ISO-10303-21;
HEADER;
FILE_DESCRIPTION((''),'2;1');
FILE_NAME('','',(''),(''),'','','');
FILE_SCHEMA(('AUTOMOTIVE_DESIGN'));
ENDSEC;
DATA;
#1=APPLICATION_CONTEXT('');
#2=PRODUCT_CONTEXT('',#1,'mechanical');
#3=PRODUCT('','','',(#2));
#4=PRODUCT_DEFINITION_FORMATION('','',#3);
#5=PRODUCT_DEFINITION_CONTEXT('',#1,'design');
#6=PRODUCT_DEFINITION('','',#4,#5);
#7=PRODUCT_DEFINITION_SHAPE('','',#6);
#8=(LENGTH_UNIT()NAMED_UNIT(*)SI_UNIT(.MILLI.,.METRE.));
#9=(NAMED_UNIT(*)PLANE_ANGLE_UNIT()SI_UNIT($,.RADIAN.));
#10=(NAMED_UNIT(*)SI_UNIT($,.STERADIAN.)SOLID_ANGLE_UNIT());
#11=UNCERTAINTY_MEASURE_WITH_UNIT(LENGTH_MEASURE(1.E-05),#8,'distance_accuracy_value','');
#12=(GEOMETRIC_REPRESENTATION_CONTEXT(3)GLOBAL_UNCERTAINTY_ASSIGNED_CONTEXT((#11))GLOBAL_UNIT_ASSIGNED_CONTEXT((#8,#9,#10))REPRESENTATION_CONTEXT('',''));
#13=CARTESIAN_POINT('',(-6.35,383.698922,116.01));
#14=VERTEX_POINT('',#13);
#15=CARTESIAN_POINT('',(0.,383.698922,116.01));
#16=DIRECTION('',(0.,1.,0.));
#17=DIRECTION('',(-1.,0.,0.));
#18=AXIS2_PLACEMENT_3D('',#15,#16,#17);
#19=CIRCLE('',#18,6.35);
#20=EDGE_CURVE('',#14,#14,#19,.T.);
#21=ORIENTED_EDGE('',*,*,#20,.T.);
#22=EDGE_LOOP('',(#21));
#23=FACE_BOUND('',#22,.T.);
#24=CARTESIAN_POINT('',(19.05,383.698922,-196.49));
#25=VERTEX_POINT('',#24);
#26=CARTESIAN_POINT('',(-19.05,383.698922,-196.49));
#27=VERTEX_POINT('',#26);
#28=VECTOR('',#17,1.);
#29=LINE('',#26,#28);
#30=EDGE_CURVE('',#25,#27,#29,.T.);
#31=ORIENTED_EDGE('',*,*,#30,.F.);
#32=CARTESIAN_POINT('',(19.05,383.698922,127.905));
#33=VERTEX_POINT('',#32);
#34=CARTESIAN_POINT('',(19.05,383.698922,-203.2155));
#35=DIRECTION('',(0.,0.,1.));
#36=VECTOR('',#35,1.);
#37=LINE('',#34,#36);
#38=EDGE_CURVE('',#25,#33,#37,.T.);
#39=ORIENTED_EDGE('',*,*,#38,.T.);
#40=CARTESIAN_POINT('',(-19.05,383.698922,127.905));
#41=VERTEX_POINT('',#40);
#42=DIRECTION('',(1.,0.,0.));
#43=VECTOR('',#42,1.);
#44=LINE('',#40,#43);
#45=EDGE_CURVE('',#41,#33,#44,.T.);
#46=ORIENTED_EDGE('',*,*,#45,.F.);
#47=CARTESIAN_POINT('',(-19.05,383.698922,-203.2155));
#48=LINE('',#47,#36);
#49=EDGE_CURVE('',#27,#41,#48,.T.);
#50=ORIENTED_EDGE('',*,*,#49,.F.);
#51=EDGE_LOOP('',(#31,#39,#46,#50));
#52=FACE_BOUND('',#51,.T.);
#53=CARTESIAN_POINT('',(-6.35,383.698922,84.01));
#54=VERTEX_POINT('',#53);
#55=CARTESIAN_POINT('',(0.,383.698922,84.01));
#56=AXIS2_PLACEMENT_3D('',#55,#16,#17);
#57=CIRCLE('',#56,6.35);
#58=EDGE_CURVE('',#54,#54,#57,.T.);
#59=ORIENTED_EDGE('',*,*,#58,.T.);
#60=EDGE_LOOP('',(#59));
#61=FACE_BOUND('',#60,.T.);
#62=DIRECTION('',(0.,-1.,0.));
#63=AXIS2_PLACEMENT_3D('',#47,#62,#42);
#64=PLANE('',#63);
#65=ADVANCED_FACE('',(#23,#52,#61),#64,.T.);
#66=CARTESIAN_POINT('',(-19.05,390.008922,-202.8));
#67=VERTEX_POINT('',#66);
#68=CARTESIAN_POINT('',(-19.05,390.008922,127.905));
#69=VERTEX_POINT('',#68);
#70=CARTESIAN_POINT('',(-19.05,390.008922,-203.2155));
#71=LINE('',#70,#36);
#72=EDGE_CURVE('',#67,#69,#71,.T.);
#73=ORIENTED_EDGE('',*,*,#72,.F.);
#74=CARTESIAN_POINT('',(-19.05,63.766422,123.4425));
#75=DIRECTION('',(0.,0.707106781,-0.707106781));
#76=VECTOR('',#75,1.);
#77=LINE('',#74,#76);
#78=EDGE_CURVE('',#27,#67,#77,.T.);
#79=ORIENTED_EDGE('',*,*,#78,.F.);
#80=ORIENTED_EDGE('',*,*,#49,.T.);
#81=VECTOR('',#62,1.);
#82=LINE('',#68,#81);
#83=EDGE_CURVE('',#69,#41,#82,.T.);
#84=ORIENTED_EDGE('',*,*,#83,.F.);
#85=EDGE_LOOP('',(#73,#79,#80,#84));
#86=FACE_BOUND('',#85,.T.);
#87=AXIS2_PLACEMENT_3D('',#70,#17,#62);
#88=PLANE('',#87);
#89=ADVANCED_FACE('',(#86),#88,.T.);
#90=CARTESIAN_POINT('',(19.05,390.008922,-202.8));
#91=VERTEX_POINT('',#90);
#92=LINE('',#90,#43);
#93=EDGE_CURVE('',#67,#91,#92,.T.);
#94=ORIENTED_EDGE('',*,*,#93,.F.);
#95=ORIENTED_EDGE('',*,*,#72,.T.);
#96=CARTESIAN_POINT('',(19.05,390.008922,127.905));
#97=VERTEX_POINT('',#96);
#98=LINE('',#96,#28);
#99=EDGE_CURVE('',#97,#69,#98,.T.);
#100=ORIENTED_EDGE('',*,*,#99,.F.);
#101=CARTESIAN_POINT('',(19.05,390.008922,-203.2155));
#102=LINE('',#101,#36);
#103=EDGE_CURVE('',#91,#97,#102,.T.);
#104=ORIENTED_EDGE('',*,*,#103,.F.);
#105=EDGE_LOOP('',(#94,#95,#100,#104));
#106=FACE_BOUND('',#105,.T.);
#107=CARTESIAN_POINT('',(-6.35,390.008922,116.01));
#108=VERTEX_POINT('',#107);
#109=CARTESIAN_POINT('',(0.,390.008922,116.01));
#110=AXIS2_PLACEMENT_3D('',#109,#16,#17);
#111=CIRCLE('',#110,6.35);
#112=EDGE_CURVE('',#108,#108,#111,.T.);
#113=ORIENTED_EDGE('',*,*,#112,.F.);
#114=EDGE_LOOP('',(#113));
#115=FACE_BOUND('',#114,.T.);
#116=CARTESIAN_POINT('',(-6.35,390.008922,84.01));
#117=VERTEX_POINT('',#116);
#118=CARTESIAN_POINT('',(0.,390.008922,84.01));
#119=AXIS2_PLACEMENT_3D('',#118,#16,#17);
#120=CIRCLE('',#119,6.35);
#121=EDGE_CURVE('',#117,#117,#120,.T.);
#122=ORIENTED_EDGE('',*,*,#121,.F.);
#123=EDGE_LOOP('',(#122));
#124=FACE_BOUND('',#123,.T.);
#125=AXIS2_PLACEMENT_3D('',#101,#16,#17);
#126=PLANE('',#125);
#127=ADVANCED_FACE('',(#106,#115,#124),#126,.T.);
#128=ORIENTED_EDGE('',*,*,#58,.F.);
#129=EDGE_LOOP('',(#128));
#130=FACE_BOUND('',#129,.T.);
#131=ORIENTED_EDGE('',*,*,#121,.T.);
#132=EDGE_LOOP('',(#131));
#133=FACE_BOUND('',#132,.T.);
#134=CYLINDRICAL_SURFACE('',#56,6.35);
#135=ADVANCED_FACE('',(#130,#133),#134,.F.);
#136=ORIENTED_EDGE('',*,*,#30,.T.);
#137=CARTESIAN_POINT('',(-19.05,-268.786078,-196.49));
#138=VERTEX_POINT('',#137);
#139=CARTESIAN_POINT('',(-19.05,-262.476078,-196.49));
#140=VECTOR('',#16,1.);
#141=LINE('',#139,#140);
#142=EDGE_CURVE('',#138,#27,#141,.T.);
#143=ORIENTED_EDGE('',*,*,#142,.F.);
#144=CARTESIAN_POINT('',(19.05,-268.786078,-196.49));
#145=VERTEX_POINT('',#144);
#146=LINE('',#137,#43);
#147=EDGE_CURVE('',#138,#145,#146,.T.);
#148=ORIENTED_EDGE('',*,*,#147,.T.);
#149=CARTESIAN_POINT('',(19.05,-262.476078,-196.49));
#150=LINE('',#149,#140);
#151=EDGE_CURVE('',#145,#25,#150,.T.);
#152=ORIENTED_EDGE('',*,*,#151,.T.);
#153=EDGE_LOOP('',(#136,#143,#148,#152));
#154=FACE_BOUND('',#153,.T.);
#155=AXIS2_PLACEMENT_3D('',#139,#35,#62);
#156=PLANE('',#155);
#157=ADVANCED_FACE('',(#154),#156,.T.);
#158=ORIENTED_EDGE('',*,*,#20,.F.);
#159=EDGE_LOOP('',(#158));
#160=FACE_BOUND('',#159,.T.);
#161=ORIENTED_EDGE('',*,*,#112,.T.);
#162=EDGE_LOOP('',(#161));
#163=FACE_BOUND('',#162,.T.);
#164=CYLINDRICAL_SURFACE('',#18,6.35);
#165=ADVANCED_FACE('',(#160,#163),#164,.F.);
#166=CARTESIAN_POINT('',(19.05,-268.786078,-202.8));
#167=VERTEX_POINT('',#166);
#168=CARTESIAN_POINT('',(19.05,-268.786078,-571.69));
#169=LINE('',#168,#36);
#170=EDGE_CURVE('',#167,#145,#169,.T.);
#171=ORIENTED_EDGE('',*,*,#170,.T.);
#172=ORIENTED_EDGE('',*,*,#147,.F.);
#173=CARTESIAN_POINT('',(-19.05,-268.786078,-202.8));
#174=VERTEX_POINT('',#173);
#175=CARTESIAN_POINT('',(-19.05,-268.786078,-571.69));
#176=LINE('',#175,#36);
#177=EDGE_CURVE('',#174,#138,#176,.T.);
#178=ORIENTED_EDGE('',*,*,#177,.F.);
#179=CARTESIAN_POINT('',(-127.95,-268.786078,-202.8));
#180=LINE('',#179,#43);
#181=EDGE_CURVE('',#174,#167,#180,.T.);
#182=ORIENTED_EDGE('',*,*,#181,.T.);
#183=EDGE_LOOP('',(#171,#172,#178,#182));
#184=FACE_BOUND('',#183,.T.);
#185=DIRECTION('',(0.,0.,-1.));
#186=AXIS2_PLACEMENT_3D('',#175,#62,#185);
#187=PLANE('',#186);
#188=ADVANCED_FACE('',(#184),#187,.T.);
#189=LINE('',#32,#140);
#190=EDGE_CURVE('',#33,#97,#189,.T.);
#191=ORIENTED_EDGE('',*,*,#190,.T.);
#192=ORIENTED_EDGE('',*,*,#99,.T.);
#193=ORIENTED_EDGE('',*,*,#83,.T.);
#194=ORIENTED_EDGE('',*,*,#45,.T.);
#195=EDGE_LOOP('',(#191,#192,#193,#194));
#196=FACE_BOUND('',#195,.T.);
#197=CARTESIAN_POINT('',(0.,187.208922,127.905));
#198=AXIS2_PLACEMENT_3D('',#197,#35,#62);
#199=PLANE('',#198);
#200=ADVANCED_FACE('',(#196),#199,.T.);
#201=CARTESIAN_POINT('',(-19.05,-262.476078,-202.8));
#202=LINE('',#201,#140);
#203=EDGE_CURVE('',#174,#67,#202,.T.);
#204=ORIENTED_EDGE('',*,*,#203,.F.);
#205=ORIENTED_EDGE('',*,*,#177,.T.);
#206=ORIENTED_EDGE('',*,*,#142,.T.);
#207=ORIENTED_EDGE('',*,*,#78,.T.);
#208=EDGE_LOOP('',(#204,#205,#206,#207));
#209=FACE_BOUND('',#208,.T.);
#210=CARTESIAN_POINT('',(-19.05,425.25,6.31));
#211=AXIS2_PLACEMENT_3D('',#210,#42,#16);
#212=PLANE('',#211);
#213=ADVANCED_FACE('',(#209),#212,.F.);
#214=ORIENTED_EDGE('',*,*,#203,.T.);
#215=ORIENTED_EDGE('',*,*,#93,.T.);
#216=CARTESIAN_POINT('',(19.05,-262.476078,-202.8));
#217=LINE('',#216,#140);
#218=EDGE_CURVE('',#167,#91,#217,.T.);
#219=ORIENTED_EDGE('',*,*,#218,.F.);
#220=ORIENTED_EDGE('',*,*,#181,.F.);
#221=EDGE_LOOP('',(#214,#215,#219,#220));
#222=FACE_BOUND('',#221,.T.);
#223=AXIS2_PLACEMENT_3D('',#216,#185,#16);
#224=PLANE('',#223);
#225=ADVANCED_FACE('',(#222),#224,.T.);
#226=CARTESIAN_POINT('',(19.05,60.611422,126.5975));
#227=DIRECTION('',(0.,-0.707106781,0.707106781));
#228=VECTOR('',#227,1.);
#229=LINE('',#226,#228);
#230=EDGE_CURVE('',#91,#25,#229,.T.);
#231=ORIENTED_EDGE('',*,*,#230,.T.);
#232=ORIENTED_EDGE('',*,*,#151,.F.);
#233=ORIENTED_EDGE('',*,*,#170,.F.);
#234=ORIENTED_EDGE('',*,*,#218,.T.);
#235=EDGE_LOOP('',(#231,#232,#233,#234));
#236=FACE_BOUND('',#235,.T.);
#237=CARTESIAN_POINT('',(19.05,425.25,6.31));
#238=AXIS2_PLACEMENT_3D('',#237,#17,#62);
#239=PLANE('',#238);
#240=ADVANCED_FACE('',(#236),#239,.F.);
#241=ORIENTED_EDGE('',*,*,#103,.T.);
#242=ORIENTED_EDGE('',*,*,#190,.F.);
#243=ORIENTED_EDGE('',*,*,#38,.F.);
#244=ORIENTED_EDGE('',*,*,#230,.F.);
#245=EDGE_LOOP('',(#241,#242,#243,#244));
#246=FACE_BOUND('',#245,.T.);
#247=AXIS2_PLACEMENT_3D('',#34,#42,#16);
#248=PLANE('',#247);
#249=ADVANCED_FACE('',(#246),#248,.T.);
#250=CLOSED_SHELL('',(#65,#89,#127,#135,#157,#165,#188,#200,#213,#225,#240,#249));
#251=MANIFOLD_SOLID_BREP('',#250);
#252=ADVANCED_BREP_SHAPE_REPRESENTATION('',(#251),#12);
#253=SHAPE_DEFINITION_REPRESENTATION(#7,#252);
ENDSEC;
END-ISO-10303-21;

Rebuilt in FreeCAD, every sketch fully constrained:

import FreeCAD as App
import Part
import Sketcher
Q = App.Units.Quantity


def add_polygon(sketch, points):
    """Adds a closed chain of lines whose ends are joined by coincident constraints."""
    first, n = sketch.GeometryCount, len(points)
    for a, b in zip(points, points[1:] + points[:1]):
        sketch.addGeometry(Part.LineSegment(App.Vector(*a, 0), App.Vector(*b, 0)), False)
    for i in range(n):
        sketch.addConstraint(Sketcher.Constraint("Coincident", first + i, 2, first + (i + 1) % n, 1))

doc = App.newDocument("Part")
body = doc.addObject("PartDesign::Body", "Body")

# Sketch on XY plane
sketch1 = doc.addObject("Sketcher::SketchObject", "Sketch")
body.addObject(sketch1)
sketch1.AttachmentSupport = (doc.XY_Plane, [""])
sketch1.MapMode = "FlatFace"
add_polygon(sketch1, [(-19, 425), (-19, -425), (19, -425), (19, 425)])  # lines 0-3
sketch1.addConstraint(Sketcher.Constraint("Vertical", 0))
sketch1.addConstraint(Sketcher.Constraint("Horizontal", 1))
sketch1.addConstraint(Sketcher.Constraint("Vertical", 2))
sketch1.addConstraint(Sketcher.Constraint("Horizontal", 3))
sketch1.addConstraint(Sketcher.Constraint("Symmetric", 0, 2, 2, 2, -1, 1))
sketch1.addConstraint(Sketcher.Constraint("DistanceX", 1, 1, 1, 2, Q("38.1 mm")))
sketch1.addConstraint(Sketcher.Constraint("DistanceY", 0, 2, 0, 1, Q("850.5 mm")))
pad1 = doc.addObject("PartDesign::Pad", "Pad")
body.addObject(pad1)
pad1.Profile = sketch1
pad1.Length = 6.31

# Sketch on XY plane
sketch2 = doc.addObject("Sketcher::SketchObject", "Sketch001")
body.addObject(sketch2)
sketch2.AttachmentSupport = (doc.XY_Plane, [""])
sketch2.MapMode = "FlatFace"
sketch2.AttachmentOffset = App.Placement(App.Vector(0, 0, 6.31), App.Rotation())
add_polygon(sketch2, [(-19, -419), (-19, -425), (19, -425), (19, -419)])  # lines 0-3
sketch2.addConstraint(Sketcher.Constraint("Vertical", 0))
sketch2.addConstraint(Sketcher.Constraint("Horizontal", 1))
sketch2.addConstraint(Sketcher.Constraint("Vertical", 2))
sketch2.addConstraint(Sketcher.Constraint("Horizontal", 3))
sketch2.addConstraint(Sketcher.Constraint("DistanceX", 1, 1, 1, 2, Q("38.1 mm")))
sketch2.addConstraint(Sketcher.Constraint("DistanceY", 0, 2, 0, 1, Q("6.31 mm")))
sketch2.addConstraint(Sketcher.Constraint("DistanceX", 0, 2, -1, 1, Q("19.05 mm")))
sketch2.addConstraint(Sketcher.Constraint("DistanceY", 0, 2, -1, 1, Q("425.25 mm")))
pad2 = doc.addObject("PartDesign::Pad", "Pad001")
body.addObject(pad2)
pad2.Profile = sketch2
pad2.Length = 70

# Sketch on XY plane
sketch3 = doc.addObject("Sketcher::SketchObject", "Sketch002")
body.addObject(sketch3)
sketch3.AttachmentSupport = (doc.XY_Plane, [""])
sketch3.MapMode = "FlatFace"
sketch3.AttachmentOffset = App.Placement(App.Vector(0, 0, 6.31), App.Rotation())
add_polygon(sketch3, [(-19, -262), (-19, -269), (19, -269), (19, -262)])  # lines 0-3
sketch3.addConstraint(Sketcher.Constraint("Vertical", 0))
sketch3.addConstraint(Sketcher.Constraint("Horizontal", 1))
sketch3.addConstraint(Sketcher.Constraint("Vertical", 2))
sketch3.addConstraint(Sketcher.Constraint("Horizontal", 3))
sketch3.addConstraint(Sketcher.Constraint("DistanceX", 1, 1, 1, 2, Q("38.1 mm")))
sketch3.addConstraint(Sketcher.Constraint("DistanceY", 0, 2, 0, 1, Q("6.31 mm")))
sketch3.addConstraint(Sketcher.Constraint("DistanceX", 0, 2, -1, 1, Q("19.05 mm")))
sketch3.addConstraint(Sketcher.Constraint("DistanceY", 0, 2, -1, 1, Q("268.786078 mm")))
pad3 = doc.addObject("PartDesign::Pad", "Pad002")
body.addObject(pad3)
pad3.Profile = sketch3
pad3.Length = 578
pad3.Reversed = True

# Sketch on XZ plane
sketch4 = doc.addObject("Sketcher::SketchObject", "Sketch003")
body.addObject(sketch4)
sketch4.AttachmentSupport = (doc.XZ_Plane, [""])
sketch4.MapMode = "FlatFace"
sketch4.AttachmentOffset = App.Placement(App.Vector(0, 0, 262.476078), App.Rotation())
sketch4.addGeometry(Part.Circle(App.Vector(0, -537, 0), App.Vector(0, 0, 1), 7), False)
sketch4.addConstraint(Sketcher.Constraint("PointOnObject", 0, 3, -2))
sketch4.addConstraint(Sketcher.Constraint("Diameter", 0, Q("13.871713 mm")))
sketch4.addConstraint(Sketcher.Constraint("DistanceY", 0, 3, -1, 1, Q("536.981534 mm")))
pocket1 = doc.addObject("PartDesign::Pocket", "Pocket")
body.addObject(pocket1)
pocket1.Profile = sketch4
pocket1.Length = 7
pocket1.Reversed = True

# Sketch on XY plane
sketch5 = doc.addObject("Sketcher::SketchObject", "Sketch004")
body.addObject(sketch5)
sketch5.AttachmentSupport = (doc.XY_Plane, [""])
sketch5.MapMode = "FlatFace"
add_polygon(sketch5, [(19, 425), (19, -262), (-19, -262), (-19, 425)])  # lines 0-3
sketch5.addConstraint(Sketcher.Constraint("Vertical", 0))
sketch5.addConstraint(Sketcher.Constraint("Horizontal", 1))
sketch5.addConstraint(Sketcher.Constraint("Vertical", 2))
sketch5.addConstraint(Sketcher.Constraint("Horizontal", 3))
sketch5.addConstraint(Sketcher.Constraint("DistanceX", 1, 2, 1, 1, Q("38.1 mm")))
sketch5.addConstraint(Sketcher.Constraint("DistanceX", -1, 1, 0, 2, Q("19.05 mm")))
sketch5.addConstraint(Sketcher.Constraint("DistanceY", -1, 1, 2, 2, Q("425.25 mm")))
sketch5.addConstraint(Sketcher.Constraint("DistanceY", 0, 2, 0, 1, Q("687.726078 mm")))
pocket2 = doc.addObject("PartDesign::Pocket", "Pocket001")
body.addObject(pocket2)
pocket2.Profile = sketch5
pocket2.Length = 10
pocket2.Reversed = True

# Sketch on XZ plane
sketch6 = doc.addObject("Sketcher::SketchObject", "Sketch005")
body.addObject(sketch6)
sketch6.AttachmentSupport = (doc.XZ_Plane, [""])
sketch6.MapMode = "FlatFace"
sketch6.AttachmentOffset = App.Placement(App.Vector(0, 0, 262.476078), App.Rotation())
add_polygon(sketch6, [(-19, -203), (-19, -196), (19, -196), (19, -203)])  # lines 0-3
sketch6.addConstraint(Sketcher.Constraint("Vertical", 0))
sketch6.addConstraint(Sketcher.Constraint("Horizontal", 1))
sketch6.addConstraint(Sketcher.Constraint("Vertical", 2))
sketch6.addConstraint(Sketcher.Constraint("Horizontal", 3))
sketch6.addConstraint(Sketcher.Constraint("DistanceX", 1, 1, 1, 2, Q("38.1 mm")))
sketch6.addConstraint(Sketcher.Constraint("DistanceY", 0, 1, 0, 2, Q("6.31 mm")))
sketch6.addConstraint(Sketcher.Constraint("DistanceY", 2, 2, -1, 1, Q("202.8 mm")))
sketch6.addConstraint(Sketcher.Constraint("DistanceX", 0, 2, -1, 1, Q("19.05 mm")))

# Sketch on YZ plane
sketch7 = doc.addObject("Sketcher::SketchObject", "Sketch006")
body.addObject(sketch7)
sketch7.AttachmentSupport = (doc.YZ_Plane, [""])
sketch7.MapMode = "FlatFace"
sketch7.addGeometry(Part.LineSegment(App.Vector(-262, -200, 0), App.Vector(387, -200, 0)), False)
sketch7.addGeometry(Part.LineSegment(App.Vector(387, -200, 0), App.Vector(387, 128, 0)), False)
sketch7.addConstraint(Sketcher.Constraint("Coincident", 0, 2, 1, 1))
sketch7.addConstraint(Sketcher.Constraint("Horizontal", 0))
sketch7.addConstraint(Sketcher.Constraint("Vertical", 1))
sketch7.addConstraint(Sketcher.Constraint("DistanceX", 0, 1, 0, 2, Q("649.33 mm")))
sketch7.addConstraint(Sketcher.Constraint("DistanceY", 1, 1, 1, 2, Q("327.55 mm")))
sketch7.addConstraint(Sketcher.Constraint("DistanceY", 0, 1, -1, 1, Q("199.645 mm")))
sketch7.addConstraint(Sketcher.Constraint("DistanceX", 0, 1, -1, 1, Q("262.476078 mm")))
doc.recompute()

additivepipe = doc.addObject("PartDesign::AdditivePipe", "AdditivePipe")
body.addObject(additivepipe)
additivepipe.Profile = sketch6
additivepipe.Spine = (sketch7, ["Edge1", "Edge2"])
additivepipe.Transition = "Right corner"

# Sketch on YZ plane
sketch8 = doc.addObject("Sketcher::SketchObject", "Sketch007")
body.addObject(sketch8)
sketch8.AttachmentSupport = (doc.YZ_Plane, [""])
sketch8.MapMode = "FlatFace"
sketch8.AttachmentOffset = App.Placement(App.Vector(0, 0, 19.05), App.Rotation())
add_polygon(sketch8, [(-444, -196), (-262, -196), (-262, 91), (-444, 91)])  # lines 0-3
add_polygon(sketch8, [(-262, -203), (-269, -203), (-269, -572), (-262, -572)])  # lines 4-7
sketch8.addConstraint(Sketcher.Constraint("Horizontal", 0))
sketch8.addConstraint(Sketcher.Constraint("Vertical", 1))
sketch8.addConstraint(Sketcher.Constraint("Horizontal", 2))
sketch8.addConstraint(Sketcher.Constraint("Vertical", 3))
sketch8.addConstraint(Sketcher.Constraint("Horizontal", 4))
sketch8.addConstraint(Sketcher.Constraint("Vertical", 5))
sketch8.addConstraint(Sketcher.Constraint("Horizontal", 6))
sketch8.addConstraint(Sketcher.Constraint("Vertical", 7))
sketch8.addConstraint(Sketcher.Constraint("Vertical", 1, 2, 6, 2))
sketch8.addConstraint(Sketcher.Constraint("DistanceX", 4, 2, 4, 1, Q("6.31 mm")))
sketch8.addConstraint(Sketcher.Constraint("DistanceY", 5, 2, 5, 1, Q("368.89 mm")))
sketch8.addConstraint(Sketcher.Constraint("DistanceY", 4, 2, -1, 1, Q("202.8 mm")))
sketch8.addConstraint(Sketcher.Constraint("DistanceY", 5, 2, 0, 2, Q("375.2 mm")))
sketch8.addConstraint(Sketcher.Constraint("DistanceY", 1, 1, 1, 2, Q("287.324601 mm")))
sketch8.addConstraint(Sketcher.Constraint("DistanceX", 0, 1, 0, 2, Q("181.831596 mm")))
sketch8.addConstraint(Sketcher.Constraint("DistanceX", 0, 2, -1, 1, Q("262.476078 mm")))
pocket3 = doc.addObject("PartDesign::Pocket", "Pocket002")
body.addObject(pocket3)
pocket3.Profile = sketch8
pocket3.Length = 147

# Sketch on XZ plane
sketch9 = doc.addObject("Sketcher::SketchObject", "Sketch008")
body.addObject(sketch9)
sketch9.AttachmentSupport = (doc.XZ_Plane, [""])
sketch9.MapMode = "FlatFace"
sketch9.AttachmentOffset = App.Placement(App.Vector(0, 0, -390.008922), App.Rotation())
sketch9.addGeometry(Part.Circle(App.Vector(0, 84, 0), App.Vector(0, 0, 1), 6), False)
sketch9.addGeometry(Part.Circle(App.Vector(0, 116, 0), App.Vector(0, 0, 1), 6), False)
sketch9.addConstraint(Sketcher.Constraint("Equal", 0, 1))
sketch9.addConstraint(Sketcher.Constraint("PointOnObject", 0, 3, -2))
sketch9.addConstraint(Sketcher.Constraint("PointOnObject", 1, 3, -2))
sketch9.addConstraint(Sketcher.Constraint("Diameter", 0, Q("12.7 mm")))
sketch9.addConstraint(Sketcher.Constraint("DistanceY", 0, 3, 1, 3, Q("32 mm")))
sketch9.addConstraint(Sketcher.Constraint("DistanceY", -1, 1, 0, 3, Q("84.01 mm")))
pocket4 = doc.addObject("PartDesign::Pocket", "Pocket003")
body.addObject(pocket4)
pocket4.Profile = sketch9
pocket4.Length = 6.31
pocket4.Reversed = True

doc.recompute()
